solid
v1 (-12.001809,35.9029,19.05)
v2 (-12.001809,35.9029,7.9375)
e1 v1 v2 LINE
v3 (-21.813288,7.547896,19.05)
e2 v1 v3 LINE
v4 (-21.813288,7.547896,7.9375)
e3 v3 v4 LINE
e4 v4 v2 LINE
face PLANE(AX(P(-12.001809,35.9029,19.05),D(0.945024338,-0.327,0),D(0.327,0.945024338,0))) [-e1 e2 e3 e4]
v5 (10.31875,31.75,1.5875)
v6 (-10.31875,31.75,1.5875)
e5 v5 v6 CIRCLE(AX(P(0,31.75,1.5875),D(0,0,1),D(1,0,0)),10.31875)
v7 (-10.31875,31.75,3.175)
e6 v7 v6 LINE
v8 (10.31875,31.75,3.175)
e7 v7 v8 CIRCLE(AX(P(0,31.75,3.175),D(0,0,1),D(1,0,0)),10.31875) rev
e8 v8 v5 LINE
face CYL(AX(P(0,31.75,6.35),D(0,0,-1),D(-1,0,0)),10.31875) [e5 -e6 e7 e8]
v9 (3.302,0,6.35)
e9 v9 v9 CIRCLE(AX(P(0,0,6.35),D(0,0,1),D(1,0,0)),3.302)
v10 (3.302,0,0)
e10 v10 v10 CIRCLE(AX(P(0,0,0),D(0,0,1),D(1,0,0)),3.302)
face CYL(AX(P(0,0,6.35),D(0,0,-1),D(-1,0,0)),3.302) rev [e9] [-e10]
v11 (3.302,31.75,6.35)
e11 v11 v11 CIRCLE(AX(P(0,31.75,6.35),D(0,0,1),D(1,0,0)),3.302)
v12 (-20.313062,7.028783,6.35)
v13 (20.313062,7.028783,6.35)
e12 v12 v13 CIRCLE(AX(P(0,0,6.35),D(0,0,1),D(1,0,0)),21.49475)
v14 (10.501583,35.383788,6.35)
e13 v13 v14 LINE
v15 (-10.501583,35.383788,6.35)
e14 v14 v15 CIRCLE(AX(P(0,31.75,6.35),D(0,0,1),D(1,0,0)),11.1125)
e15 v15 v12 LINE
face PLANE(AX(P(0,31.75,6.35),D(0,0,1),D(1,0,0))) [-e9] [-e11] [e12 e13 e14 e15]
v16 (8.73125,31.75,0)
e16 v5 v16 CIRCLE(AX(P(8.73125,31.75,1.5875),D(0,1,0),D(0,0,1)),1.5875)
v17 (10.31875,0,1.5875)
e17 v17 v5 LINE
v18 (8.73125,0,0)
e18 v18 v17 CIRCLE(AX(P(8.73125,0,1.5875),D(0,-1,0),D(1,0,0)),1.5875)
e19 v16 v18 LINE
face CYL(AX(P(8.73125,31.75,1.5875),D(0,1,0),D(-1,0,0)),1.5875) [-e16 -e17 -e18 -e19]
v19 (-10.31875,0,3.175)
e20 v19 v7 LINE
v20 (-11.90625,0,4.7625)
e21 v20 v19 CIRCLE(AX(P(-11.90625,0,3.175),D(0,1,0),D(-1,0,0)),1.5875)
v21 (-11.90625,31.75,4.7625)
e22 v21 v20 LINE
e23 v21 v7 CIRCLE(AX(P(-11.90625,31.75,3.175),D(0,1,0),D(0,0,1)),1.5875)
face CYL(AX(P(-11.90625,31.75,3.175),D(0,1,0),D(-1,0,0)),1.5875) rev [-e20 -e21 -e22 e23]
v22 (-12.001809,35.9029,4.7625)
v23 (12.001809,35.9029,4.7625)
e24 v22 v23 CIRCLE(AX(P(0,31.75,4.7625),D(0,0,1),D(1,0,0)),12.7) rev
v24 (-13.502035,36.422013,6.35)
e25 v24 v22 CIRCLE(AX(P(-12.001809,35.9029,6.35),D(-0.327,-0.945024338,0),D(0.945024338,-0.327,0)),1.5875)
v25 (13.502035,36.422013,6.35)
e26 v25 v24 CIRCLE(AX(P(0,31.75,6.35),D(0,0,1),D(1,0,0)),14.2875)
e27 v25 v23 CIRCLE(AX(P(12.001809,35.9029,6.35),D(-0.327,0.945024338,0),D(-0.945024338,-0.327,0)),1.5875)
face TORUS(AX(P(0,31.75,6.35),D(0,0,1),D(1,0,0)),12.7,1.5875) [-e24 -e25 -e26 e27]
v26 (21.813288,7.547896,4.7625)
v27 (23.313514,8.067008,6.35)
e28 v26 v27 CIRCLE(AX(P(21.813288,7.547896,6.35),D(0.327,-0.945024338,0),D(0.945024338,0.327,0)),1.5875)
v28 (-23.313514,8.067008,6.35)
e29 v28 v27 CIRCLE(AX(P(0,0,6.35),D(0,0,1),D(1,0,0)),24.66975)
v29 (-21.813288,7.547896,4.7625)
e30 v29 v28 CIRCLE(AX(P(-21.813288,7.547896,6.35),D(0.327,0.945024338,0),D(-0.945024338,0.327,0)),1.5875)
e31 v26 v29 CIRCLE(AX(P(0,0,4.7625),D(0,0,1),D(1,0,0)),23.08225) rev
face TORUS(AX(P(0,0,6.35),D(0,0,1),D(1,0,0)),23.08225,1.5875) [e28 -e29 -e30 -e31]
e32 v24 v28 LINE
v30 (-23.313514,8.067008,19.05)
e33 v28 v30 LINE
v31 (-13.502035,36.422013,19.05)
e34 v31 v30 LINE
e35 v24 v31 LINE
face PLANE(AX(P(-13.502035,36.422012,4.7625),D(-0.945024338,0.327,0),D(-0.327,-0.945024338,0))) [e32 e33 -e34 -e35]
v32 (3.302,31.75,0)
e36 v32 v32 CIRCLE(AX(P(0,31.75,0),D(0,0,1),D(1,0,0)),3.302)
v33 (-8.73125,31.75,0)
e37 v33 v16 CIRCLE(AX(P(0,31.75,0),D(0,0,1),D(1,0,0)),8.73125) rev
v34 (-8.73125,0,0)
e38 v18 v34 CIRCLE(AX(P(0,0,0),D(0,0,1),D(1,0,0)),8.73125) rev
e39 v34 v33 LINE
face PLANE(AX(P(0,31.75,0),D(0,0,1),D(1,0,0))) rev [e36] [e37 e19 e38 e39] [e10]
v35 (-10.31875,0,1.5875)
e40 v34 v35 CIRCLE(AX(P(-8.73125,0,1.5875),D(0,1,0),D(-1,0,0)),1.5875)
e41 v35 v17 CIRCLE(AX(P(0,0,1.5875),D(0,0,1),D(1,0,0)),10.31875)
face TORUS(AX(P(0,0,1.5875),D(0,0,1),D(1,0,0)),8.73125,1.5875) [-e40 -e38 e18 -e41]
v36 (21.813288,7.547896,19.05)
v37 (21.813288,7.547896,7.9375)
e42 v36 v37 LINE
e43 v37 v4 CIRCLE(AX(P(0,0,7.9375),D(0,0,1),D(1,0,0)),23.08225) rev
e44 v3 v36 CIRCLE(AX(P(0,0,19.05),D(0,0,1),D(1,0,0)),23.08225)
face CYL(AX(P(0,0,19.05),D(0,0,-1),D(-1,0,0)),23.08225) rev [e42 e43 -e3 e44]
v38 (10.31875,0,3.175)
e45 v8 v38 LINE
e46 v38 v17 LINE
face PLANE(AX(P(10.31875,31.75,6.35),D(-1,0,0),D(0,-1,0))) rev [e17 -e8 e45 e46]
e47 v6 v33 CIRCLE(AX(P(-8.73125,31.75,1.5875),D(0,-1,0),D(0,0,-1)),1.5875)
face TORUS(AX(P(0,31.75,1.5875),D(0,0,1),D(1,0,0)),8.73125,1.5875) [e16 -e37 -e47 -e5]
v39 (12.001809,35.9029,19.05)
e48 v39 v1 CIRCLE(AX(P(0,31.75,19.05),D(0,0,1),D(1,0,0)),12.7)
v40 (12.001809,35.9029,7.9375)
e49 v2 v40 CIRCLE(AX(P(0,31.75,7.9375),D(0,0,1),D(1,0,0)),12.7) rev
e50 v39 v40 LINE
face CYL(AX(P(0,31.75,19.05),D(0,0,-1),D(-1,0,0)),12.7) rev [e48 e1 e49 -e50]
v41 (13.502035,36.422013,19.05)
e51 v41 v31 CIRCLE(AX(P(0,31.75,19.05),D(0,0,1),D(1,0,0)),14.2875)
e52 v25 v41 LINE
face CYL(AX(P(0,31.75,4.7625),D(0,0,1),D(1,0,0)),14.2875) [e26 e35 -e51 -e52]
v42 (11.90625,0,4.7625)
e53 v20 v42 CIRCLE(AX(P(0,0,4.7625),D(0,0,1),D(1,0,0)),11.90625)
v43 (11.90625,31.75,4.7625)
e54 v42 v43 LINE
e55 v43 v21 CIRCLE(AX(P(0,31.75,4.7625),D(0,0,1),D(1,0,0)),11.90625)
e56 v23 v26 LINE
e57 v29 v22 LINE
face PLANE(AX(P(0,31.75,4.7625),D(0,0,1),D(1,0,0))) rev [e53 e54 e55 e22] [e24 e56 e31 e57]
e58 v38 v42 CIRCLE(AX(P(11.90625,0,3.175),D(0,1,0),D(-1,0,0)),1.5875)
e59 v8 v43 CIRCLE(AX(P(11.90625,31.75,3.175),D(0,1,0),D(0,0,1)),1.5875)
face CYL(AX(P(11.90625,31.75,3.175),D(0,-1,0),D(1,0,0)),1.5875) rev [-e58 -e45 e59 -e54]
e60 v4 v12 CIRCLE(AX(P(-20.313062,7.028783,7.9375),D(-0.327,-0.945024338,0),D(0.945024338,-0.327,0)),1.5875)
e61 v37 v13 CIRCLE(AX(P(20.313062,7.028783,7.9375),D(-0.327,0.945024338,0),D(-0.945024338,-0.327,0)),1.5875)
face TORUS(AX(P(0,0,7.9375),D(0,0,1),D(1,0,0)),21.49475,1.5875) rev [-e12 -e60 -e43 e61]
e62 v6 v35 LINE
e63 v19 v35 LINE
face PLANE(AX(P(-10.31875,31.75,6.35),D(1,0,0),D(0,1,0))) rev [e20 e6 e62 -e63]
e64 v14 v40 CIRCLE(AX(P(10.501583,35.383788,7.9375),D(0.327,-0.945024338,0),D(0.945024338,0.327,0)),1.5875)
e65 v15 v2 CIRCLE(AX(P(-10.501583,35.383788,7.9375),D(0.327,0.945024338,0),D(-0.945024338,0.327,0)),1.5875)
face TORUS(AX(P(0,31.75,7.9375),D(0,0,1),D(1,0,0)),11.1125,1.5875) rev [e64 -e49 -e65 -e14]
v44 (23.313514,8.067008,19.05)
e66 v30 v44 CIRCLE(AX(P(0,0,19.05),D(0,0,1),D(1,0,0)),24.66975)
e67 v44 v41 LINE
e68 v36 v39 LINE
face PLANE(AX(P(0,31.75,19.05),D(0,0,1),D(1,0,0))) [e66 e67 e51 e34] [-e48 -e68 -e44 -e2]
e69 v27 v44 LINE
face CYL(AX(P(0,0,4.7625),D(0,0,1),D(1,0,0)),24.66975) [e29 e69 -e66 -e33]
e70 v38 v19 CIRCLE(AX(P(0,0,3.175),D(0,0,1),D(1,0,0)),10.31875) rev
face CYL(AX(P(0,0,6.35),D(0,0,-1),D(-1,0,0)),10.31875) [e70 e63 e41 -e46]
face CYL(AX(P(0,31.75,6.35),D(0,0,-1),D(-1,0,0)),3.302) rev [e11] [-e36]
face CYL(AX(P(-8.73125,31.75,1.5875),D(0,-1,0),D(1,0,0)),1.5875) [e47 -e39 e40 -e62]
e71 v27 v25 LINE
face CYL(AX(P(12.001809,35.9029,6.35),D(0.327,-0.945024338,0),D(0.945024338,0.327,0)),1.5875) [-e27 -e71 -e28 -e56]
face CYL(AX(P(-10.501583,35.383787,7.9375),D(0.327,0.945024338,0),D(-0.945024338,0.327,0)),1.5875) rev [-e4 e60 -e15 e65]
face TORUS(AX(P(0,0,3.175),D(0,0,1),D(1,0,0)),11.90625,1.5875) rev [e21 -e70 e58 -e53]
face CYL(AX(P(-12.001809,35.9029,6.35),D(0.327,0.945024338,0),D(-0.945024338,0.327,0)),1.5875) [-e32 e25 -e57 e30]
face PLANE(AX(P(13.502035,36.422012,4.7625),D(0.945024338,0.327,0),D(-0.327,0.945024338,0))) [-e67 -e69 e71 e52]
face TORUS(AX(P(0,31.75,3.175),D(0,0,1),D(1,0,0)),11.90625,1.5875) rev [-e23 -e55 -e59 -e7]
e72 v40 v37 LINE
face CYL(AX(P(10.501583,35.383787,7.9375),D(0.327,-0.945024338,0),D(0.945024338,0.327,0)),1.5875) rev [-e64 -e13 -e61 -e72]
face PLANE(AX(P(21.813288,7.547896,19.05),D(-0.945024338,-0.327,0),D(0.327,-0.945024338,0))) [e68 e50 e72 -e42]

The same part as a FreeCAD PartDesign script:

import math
import FreeCAD as App
import Part
import Sketcher
from FreeCAD import Vector
Q = App.Units.Quantity


def edges_at(feature, points):
    """Names of the edges that pass closest to the given points."""
    edges = feature.Shape.Edges
    near = lambda p: min(range(len(edges)), key=lambda i: edges[i].distToShape(Part.Vertex(*p))[0])
    return sorted({f"Edge{near(p) + 1}" for p in points})

doc = App.newDocument("Part")
body = doc.addObject("PartDesign::Body", "Body")

# Sketch on XY plane
sketch1 = doc.addObject("Sketcher::SketchObject", "Sketch")
body.addObject(sketch1)
sketch1.AttachmentSupport = (doc.XY_Plane, [""])
sketch1.MapMode = "FlatFace"
sketch1.addGeometry(Part.LineSegment(Vector(10.3, 0, 0), Vector(10.3, 31.8, 0)), False)
sketch1.addGeometry(Part.ArcOfCircle(Part.Circle(Vector(0, 31.8, 0), Vector(0, 0, 1), 10.3), math.radians(0), math.radians(180)), False)
sketch1.addGeometry(Part.LineSegment(Vector(-10.3, 31.8, 0), Vector(-10.3, 0, 0)), False)
sketch1.addGeometry(Part.ArcOfCircle(Part.Circle(Vector(0, 0, 0), Vector(0, 0, 1), 10.3), math.radians(180), math.radians(360)), False)
sketch1.addGeometry(Part.Circle(Vector(0, 0, 0), Vector(0, 0, 1), 3.3), False)
sketch1.addGeometry(Part.Circle(Vector(0, 31.8, 0), Vector(0, 0, 1), 3.3), False)
sketch1.addConstraint(Sketcher.Constraint("Tangent", 0, 2, 1, 1))
sketch1.addConstraint(Sketcher.Constraint("Tangent", 1, 2, 2, 1))
sketch1.addConstraint(Sketcher.Constraint("Tangent", 2, 2, 3, 1))
sketch1.addConstraint(Sketcher.Constraint("Tangent", 3, 2, 0, 1))
sketch1.addConstraint(Sketcher.Constraint("Vertical", 0))
sketch1.addConstraint(Sketcher.Constraint("Vertical", 2))
sketch1.addConstraint(Sketcher.Constraint("Coincident", 3, 3, -1, 1))
sketch1.addConstraint(Sketcher.Constraint("Coincident", 4, 3, -1, 1))
sketch1.addConstraint(Sketcher.Constraint("Coincident", 5, 3, 1, 3))
sketch1.addConstraint(Sketcher.Constraint("Equal", 4, 5))
sketch1.addConstraint(Sketcher.Constraint("Diameter", 4, Q("0.26 in")))
sketch1.addConstraint(Sketcher.Constraint("Radius", 1, Q("0.40625 in")))
sketch1.addConstraint(Sketcher.Constraint("DistanceY", 0, 1, 0, 2, Q("1.25 in")))
pad1 = doc.addObject("PartDesign::Pad", "Pad")
body.addObject(pad1)
pad1.Profile = sketch1
pad1.Length = Q("0.25 in")

# Sketch on XY plane
sketch2 = doc.addObject("Sketcher::SketchObject", "Sketch001")
body.addObject(sketch2)
sketch2.AttachmentSupport = (doc.XY_Plane, [""])
sketch2.MapMode = "FlatFace"
sketch2.AttachmentOffset = App.Placement(Vector(0, 0, 0.25 * 25.4), App.Rotation())
sketch2.addGeometry(Part.LineSegment(Vector(13.5, 36.4, 0), Vector(23.3, 8.1, 0)), False)
sketch2.addGeometry(Part.ArcOfCircle(Part.Circle(Vector(0, 0, 0), Vector(0, 0, 1), 24.7), math.radians(161), math.radians(379)), False)
sketch2.addGeometry(Part.LineSegment(Vector(-23.3, 8.1, 0), Vector(-13.5, 36.4, 0)), False)
sketch2.addGeometry(Part.ArcOfCircle(Part.Circle(Vector(0, 31.7, 0), Vector(0, 0, 1), 14.3), math.radians(19), math.radians(161)), False)
sketch2.addGeometry(Part.Circle(Vector(0, 0, 0), Vector(0, 0, 1), 3.3), False)
sketch2.addGeometry(Part.Circle(Vector(0, 31.8, 0), Vector(0, 0, 1), 3.3), False)
sketch2.addConstraint(Sketcher.Constraint("Tangent", 0, 2, 1, 2))
sketch2.addConstraint(Sketcher.Constraint("Tangent", 1, 1, 2, 1))
sketch2.addConstraint(Sketcher.Constraint("Tangent", 2, 2, 3, 2))
sketch2.addConstraint(Sketcher.Constraint("Tangent", 3, 1, 0, 1))
sketch2.addConstraint(Sketcher.Constraint("Coincident", 1, 3, -1, 1))
sketch2.addConstraint(Sketcher.Constraint("Coincident", 4, 3, -1, 1))
sketch2.addConstraint(Sketcher.Constraint("Coincident", 5, 3, 3, 3))
sketch2.addConstraint(Sketcher.Constraint("Equal", 4, 5))
sketch2.addConstraint(Sketcher.Constraint("PointOnObject", 3, 3, -2))
sketch2.addConstraint(Sketcher.Constraint("Diameter", 4, Q("0.26 in")))
sketch2.addConstraint(Sketcher.Constraint("Radius", 3, Q("0.5625 in")))
sketch2.addConstraint(Sketcher.Constraint("DistanceY", -1, 1, 3, 3, Q("1.25 in")))
sketch2.addConstraint(Sketcher.Constraint("Radius", 1, Q("24.66975 mm")))
pad2 = doc.addObject("PartDesign::Pad", "Pad001")
body.addObject(pad2)
pad2.Profile = sketch2
pad2.Length = Q("0.0625 in")
pad2.Reversed = True

# Sketch on XY plane
sketch3 = doc.addObject("Sketcher::SketchObject", "Sketch002")
body.addObject(sketch3)
sketch3.AttachmentSupport = (doc.XY_Plane, [""])
sketch3.MapMode = "FlatFace"
sketch3.AttachmentOffset = App.Placement(Vector(0, 0, 0.25 * 25.4), App.Rotation())
sketch3.addGeometry(Part.LineSegment(Vector(-14, 36, 0), Vector(-23, 8, 0)), False)
sketch3.addGeometry(Part.ArcOfCircle(Part.Circle(Vector(0, 0, 0), Vector(0, 0, 1), 25), math.radians(161), math.radians(379)), False)
sketch3.addGeometry(Part.LineSegment(Vector(23, 8, 0), Vector(14, 36, 0)), False)
sketch3.addGeometry(Part.ArcOfCircle(Part.Circle(Vector(0, 32, 0), Vector(0, 0, 1), 14), math.radians(19), math.radians(161)), False)
sketch3.addGeometry(Part.LineSegment(Vector(12, 36, 0), Vector(22, 8, 0)), False)
sketch3.addGeometry(Part.ArcOfCircle(Part.Circle(Vector(0, 0, 0), Vector(0, 0, 1), 23), math.radians(161), math.radians(379)), False)
sketch3.addGeometry(Part.LineSegment(Vector(-22, 8, 0), Vector(-12, 36, 0)), False)
sketch3.addGeometry(Part.ArcOfCircle(Part.Circle(Vector(0, 32, 0), Vector(0, 0, 1), 13), math.radians(19), math.radians(161)), False)
sketch3.addConstraint(Sketcher.Constraint("Tangent", 0, 2, 1, 1))
sketch3.addConstraint(Sketcher.Constraint("Tangent", 1, 2, 2, 1))
sketch3.addConstraint(Sketcher.Constraint("Tangent", 2, 2, 3, 1))
sketch3.addConstraint(Sketcher.Constraint("Tangent", 3, 2, 0, 1))
sketch3.addConstraint(Sketcher.Constraint("Tangent", 4, 2, 5, 2))
sketch3.addConstraint(Sketcher.Constraint("Tangent", 5, 1, 6, 1))
sketch3.addConstraint(Sketcher.Constraint("Tangent", 6, 2, 7, 2))
sketch3.addConstraint(Sketcher.Constraint("Tangent", 7, 1, 4, 1))
sketch3.addConstraint(Sketcher.Constraint("Coincident", 1, 3, -1, 1))
sketch3.addConstraint(Sketcher.Constraint("Coincident", 5, 3, -1, 1))
sketch3.addConstraint(Sketcher.Constraint("Coincident", 7, 3, 3, 3))
sketch3.addConstraint(Sketcher.Constraint("PointOnObject", 3, 3, -2))
sketch3.addConstraint(Sketcher.Constraint("Parallel", 2, 4))
sketch3.addConstraint(Sketcher.Constraint("Radius", 7, Q("0.5 in")))
sketch3.addConstraint(Sketcher.Constraint("Radius", 3, Q("0.5625 in")))
sketch3.addConstraint(Sketcher.Constraint("DistanceY", -1, 1, 3, 3, Q("1.25 in")))
sketch3.addConstraint(Sketcher.Constraint("Radius", 1, Q("24.66975 mm")))
pad3 = doc.addObject("PartDesign::Pad", "Pad002")
body.addObject(pad3)
pad3.Profile = sketch3
pad3.Length = Q("0.5 in")
doc.recompute()

fillet = doc.addObject("PartDesign::Fillet", "Fillet")
body.addObject(fillet)
fillet.Base = (pad3, edges_at(pad3, [
    (10.319, 15.875, 4.763),
    (0, 42.069, 4.763),
    (-10.319, 15.875, 4.763),
    (0, -10.319, 4.763),
    (0, 46.038, 4.763),
    (18.408, 22.245, 4.763),
    (0, -24.67, 4.763),
    (-18.408, 22.245, 4.763),
    (0, -23.082, 6.35),
    (16.908, 21.725, 6.35),
    (0, 44.45, 6.35),
    (-16.908, 21.725, 6.35),
]))
fillet.Radius = Q("0.0625 in")
doc.recompute()

fillet2 = doc.addObject("PartDesign::Fillet", "Fillet001")
body.addObject(fillet2)
fillet2.Base = (fillet, edges_at(fillet, [
    (10.319, 15.875, 0),
    (0, -10.319, 0),
    (-10.319, 15.875, 0),
    (0, 42.069, 0),
]))
fillet2.Radius = Q("0.0625 in")

doc.recompute()
